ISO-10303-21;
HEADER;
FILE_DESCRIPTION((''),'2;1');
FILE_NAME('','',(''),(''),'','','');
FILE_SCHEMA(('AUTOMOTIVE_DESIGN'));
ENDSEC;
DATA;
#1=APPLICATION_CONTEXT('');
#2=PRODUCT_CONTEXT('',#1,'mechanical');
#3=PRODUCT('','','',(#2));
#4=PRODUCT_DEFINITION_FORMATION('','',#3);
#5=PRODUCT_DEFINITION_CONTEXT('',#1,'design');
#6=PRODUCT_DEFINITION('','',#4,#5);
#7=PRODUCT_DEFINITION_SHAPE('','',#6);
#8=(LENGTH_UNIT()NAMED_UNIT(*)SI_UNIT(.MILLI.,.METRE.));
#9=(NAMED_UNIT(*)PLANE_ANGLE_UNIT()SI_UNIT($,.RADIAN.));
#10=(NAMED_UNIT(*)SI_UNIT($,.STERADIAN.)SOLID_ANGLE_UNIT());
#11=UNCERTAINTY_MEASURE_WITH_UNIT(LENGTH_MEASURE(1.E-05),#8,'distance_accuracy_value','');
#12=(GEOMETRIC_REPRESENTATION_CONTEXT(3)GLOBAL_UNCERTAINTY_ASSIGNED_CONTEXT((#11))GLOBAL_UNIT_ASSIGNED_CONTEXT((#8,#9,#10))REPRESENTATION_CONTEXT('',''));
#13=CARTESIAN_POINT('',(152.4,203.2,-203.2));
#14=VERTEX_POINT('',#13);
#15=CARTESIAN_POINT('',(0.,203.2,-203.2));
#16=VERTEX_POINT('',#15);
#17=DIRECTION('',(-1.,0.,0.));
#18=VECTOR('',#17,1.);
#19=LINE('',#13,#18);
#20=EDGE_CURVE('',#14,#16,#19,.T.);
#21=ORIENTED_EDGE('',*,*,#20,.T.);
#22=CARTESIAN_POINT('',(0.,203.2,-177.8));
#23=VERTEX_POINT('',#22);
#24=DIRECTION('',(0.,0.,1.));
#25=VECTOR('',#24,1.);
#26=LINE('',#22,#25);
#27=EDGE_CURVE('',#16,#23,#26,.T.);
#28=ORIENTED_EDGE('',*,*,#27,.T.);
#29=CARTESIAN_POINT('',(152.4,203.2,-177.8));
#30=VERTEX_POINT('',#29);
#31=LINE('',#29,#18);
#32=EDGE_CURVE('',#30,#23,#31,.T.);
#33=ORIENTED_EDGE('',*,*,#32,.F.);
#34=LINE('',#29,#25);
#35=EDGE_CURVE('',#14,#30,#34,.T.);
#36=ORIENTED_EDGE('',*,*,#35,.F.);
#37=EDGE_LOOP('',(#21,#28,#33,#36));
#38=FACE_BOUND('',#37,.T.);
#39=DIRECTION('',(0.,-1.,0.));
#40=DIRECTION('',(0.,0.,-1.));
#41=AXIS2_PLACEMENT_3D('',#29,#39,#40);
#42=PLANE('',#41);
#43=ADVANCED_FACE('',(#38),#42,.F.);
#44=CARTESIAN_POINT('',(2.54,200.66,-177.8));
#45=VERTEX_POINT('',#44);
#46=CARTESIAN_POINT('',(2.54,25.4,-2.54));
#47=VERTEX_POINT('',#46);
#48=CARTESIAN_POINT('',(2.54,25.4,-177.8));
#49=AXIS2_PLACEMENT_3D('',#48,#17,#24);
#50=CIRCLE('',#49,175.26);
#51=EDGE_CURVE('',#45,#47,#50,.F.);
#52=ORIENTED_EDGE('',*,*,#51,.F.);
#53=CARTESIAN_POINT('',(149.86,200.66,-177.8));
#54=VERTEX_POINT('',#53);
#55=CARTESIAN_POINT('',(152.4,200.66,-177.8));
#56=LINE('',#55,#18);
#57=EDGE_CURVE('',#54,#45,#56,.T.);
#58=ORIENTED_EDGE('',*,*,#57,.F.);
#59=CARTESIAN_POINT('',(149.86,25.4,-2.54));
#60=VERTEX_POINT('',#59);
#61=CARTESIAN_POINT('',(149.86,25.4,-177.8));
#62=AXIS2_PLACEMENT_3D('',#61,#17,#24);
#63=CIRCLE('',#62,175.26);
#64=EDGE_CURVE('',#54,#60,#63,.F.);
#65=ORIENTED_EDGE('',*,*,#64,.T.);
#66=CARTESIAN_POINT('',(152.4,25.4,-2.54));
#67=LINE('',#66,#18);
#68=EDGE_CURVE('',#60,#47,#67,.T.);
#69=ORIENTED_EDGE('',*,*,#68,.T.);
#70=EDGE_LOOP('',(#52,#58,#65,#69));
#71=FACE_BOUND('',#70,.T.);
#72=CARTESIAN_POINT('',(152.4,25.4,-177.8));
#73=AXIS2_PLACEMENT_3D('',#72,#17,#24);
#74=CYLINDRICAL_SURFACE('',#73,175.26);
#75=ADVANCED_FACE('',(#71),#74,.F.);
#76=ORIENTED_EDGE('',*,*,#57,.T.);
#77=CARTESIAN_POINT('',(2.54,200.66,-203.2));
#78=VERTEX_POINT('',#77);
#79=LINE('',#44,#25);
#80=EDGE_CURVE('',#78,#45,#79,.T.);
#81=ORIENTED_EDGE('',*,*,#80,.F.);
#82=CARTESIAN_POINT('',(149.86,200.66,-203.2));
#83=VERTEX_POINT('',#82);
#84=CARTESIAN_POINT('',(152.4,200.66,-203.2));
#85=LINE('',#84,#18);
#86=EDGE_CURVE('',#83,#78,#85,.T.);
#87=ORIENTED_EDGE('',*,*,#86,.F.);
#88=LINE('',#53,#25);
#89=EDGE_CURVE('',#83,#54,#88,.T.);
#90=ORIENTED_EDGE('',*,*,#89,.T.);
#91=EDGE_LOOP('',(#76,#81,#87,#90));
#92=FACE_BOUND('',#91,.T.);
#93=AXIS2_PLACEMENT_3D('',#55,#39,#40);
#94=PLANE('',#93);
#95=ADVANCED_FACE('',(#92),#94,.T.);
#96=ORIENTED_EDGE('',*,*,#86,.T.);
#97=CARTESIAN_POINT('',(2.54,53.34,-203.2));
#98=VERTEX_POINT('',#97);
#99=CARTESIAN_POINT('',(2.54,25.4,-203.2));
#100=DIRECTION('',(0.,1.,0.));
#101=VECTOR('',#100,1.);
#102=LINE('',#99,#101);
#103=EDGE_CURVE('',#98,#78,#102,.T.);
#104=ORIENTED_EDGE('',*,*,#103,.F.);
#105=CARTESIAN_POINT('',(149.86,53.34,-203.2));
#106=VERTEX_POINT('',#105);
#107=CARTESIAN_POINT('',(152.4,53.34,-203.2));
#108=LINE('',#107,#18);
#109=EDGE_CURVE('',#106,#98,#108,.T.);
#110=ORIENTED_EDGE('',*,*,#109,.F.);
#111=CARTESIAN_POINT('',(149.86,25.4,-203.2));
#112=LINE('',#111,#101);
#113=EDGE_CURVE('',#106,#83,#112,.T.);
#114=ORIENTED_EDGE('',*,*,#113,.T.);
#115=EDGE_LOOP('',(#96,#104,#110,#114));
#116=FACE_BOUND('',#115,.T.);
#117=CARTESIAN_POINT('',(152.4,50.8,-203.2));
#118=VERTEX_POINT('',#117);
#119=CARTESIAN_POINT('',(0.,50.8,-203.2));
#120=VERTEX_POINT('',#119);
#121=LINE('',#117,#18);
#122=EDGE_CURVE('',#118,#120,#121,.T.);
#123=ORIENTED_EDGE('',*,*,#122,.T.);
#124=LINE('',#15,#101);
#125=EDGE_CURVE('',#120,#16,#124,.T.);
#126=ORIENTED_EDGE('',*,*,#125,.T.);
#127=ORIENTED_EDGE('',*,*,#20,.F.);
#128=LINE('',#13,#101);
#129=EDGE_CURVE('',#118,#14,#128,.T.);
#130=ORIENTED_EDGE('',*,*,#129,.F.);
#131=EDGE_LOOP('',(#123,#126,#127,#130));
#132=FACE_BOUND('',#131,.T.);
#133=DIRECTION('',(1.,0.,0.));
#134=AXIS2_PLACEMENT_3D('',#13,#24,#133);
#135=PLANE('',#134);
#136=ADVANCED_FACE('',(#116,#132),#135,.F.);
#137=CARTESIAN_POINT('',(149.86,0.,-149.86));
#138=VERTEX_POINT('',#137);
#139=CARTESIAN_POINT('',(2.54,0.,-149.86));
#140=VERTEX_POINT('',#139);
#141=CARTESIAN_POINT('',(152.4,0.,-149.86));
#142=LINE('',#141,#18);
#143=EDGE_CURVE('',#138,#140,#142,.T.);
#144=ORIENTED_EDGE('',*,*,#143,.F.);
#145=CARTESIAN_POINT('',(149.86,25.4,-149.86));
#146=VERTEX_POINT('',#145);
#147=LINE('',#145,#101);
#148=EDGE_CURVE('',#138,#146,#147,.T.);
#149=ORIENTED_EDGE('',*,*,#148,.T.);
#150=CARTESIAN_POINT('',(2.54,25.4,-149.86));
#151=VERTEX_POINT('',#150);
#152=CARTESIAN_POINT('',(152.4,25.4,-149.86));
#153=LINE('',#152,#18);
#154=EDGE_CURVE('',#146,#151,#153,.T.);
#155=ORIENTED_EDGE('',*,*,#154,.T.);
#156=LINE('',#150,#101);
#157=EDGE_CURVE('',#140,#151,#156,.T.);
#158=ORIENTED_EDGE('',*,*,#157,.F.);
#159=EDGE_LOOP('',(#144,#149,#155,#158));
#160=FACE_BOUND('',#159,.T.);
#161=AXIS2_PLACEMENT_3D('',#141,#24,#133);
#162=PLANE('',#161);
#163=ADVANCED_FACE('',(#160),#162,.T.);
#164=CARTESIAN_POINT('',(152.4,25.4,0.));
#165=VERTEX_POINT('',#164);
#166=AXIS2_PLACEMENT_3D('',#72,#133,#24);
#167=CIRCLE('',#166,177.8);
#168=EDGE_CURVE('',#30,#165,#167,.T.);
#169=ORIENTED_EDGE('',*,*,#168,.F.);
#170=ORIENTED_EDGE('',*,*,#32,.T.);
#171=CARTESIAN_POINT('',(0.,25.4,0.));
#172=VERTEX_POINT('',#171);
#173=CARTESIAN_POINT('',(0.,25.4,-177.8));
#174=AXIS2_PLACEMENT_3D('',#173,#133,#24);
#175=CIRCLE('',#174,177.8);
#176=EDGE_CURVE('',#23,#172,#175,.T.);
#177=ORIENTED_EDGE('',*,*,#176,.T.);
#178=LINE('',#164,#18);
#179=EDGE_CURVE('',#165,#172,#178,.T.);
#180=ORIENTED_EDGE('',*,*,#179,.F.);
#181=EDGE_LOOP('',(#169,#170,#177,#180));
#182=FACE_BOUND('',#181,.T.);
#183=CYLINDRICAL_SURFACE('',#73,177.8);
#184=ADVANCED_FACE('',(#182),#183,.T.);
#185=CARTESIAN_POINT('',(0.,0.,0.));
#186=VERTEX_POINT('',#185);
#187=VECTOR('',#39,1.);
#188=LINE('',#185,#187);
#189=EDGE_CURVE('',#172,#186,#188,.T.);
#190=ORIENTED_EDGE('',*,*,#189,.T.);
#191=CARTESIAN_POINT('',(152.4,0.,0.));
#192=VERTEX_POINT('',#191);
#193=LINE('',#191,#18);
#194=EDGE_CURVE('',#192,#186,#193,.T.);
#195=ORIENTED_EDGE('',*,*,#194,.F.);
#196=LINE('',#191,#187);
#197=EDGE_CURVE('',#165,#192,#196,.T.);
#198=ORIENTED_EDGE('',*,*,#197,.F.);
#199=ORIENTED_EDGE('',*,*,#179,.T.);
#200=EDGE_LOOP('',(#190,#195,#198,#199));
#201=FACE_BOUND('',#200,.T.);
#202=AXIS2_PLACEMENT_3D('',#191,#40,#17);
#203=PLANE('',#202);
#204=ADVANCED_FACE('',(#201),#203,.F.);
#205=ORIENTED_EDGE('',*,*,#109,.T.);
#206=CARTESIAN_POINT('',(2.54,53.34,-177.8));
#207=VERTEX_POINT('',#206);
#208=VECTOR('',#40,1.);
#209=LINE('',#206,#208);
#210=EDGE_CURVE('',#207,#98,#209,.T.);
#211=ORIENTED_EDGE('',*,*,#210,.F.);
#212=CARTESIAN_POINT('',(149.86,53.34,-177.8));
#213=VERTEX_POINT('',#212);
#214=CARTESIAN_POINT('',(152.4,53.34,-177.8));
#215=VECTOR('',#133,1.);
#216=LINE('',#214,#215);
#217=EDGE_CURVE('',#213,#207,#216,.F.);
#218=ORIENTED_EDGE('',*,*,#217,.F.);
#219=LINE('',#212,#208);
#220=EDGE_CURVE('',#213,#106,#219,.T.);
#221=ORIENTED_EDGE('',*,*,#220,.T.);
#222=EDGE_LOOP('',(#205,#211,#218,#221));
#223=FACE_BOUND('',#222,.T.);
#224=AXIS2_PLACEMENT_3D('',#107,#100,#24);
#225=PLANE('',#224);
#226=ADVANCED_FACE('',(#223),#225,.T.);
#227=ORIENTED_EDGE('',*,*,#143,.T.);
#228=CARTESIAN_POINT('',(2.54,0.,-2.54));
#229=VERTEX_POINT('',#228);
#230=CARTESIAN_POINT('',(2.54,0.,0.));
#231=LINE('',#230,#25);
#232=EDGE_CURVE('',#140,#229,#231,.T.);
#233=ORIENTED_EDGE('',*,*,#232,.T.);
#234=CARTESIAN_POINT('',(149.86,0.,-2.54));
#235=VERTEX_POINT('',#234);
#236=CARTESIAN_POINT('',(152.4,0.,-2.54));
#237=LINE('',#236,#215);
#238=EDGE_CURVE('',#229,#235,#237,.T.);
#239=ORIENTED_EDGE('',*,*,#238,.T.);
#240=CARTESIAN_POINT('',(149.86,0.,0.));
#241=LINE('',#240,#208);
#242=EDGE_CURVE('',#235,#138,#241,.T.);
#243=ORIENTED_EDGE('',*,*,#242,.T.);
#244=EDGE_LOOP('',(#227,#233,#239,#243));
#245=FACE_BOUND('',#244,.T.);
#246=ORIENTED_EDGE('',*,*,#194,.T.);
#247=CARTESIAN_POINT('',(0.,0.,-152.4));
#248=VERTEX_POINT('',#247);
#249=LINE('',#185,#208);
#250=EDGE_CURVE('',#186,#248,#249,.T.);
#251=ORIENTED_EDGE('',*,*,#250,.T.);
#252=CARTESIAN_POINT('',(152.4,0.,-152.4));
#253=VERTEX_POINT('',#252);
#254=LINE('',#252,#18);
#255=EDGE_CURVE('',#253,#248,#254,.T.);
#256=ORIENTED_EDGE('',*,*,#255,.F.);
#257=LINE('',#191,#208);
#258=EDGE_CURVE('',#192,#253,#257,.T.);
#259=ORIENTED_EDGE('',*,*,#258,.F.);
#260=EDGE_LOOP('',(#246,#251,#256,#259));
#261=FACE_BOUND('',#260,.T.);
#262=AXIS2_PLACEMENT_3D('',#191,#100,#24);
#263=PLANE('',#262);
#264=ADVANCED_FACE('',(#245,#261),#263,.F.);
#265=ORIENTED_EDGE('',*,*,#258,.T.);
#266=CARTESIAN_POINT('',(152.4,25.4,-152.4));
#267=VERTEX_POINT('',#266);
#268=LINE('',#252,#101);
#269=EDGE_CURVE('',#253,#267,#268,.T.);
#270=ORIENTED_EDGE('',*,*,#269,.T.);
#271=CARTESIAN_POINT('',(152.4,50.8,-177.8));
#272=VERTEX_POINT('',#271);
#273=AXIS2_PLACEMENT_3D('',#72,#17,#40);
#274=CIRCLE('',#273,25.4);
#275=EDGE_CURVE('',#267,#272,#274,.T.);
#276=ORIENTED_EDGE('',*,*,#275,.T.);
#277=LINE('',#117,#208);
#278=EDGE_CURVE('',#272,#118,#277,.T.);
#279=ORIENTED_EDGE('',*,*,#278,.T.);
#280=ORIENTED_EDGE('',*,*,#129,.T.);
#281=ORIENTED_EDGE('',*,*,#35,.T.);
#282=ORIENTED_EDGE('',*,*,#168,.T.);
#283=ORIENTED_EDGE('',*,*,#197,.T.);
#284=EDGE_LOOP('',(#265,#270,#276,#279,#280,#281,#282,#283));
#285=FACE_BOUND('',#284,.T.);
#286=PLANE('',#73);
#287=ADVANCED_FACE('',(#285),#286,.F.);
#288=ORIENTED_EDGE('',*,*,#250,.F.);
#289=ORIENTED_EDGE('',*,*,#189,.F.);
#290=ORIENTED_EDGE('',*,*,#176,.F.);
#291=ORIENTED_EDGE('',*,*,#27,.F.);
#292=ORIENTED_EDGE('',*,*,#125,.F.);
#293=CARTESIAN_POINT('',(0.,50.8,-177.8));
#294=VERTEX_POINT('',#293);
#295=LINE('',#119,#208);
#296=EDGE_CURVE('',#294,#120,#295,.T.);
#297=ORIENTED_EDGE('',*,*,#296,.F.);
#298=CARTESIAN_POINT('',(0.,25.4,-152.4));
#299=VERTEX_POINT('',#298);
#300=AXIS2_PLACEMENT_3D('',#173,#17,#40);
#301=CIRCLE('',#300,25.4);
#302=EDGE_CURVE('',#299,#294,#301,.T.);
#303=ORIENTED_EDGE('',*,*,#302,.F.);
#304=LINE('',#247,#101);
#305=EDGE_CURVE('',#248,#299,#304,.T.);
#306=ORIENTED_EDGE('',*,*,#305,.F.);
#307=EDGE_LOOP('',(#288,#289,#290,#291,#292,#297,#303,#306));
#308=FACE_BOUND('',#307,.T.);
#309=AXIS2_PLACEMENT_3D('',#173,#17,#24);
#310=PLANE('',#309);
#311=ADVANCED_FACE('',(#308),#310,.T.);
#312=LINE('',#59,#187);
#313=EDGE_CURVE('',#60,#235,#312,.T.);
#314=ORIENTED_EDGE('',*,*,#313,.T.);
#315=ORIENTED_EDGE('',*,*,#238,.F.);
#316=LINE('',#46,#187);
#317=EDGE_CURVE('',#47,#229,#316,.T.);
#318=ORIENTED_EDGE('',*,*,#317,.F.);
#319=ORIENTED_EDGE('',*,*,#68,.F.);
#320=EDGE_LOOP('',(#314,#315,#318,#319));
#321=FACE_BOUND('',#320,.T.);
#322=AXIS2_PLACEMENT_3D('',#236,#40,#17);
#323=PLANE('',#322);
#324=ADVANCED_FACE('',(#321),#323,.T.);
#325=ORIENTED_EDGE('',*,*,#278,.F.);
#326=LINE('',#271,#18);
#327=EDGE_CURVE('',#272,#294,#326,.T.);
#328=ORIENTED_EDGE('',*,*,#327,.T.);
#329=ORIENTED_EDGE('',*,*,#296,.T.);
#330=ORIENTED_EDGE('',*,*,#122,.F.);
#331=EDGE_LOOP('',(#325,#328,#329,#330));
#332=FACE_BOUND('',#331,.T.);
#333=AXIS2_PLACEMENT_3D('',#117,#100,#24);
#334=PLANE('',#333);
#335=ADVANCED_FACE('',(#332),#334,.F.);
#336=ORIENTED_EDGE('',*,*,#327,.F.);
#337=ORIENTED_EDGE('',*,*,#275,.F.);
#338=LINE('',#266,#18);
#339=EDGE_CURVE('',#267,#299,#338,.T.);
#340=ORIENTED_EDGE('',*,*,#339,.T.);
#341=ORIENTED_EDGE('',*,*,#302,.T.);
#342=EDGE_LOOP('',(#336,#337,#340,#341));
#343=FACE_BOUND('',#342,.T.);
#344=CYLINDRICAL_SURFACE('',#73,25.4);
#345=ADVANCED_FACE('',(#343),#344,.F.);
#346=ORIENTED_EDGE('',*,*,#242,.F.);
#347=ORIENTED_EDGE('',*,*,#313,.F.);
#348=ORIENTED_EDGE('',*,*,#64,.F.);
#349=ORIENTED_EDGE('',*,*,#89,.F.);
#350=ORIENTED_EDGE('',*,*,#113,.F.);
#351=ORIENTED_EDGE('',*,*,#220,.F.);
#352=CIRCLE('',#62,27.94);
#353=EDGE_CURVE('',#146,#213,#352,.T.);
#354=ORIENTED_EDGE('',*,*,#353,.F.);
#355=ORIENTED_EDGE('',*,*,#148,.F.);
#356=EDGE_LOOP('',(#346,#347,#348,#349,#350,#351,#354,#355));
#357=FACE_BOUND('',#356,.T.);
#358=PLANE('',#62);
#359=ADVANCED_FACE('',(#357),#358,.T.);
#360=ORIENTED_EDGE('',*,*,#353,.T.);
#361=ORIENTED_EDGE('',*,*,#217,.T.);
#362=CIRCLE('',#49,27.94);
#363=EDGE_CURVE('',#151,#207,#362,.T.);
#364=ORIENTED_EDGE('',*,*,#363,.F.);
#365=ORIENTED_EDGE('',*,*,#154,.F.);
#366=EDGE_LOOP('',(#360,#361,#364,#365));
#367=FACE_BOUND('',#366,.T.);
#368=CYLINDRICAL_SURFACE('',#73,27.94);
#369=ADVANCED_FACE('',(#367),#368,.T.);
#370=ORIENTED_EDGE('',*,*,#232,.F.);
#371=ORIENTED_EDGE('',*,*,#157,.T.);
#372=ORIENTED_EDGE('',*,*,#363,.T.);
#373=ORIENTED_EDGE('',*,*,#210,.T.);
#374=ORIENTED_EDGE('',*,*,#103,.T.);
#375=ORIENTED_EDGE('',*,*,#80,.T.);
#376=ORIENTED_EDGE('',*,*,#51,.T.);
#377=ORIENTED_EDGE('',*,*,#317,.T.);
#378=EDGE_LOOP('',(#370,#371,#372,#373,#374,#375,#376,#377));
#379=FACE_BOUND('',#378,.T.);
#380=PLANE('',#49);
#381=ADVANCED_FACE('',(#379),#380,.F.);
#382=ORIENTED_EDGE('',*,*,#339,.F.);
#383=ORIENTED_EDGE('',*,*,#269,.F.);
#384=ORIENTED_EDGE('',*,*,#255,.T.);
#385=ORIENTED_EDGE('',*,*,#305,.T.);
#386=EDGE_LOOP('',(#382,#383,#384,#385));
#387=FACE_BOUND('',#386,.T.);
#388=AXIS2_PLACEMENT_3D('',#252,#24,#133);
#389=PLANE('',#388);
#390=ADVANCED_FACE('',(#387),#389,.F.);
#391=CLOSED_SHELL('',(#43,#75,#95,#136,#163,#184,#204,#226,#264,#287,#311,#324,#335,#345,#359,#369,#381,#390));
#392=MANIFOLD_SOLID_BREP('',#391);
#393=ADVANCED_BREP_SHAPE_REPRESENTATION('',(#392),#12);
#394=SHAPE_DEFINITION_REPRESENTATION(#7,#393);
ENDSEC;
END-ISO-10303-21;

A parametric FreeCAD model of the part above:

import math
import FreeCAD as App
import Part
import Sketcher

V = App.Vector
Q = App.Units.Quantity


def faces_at(feature, points):
    """Names of the faces that lie closest to the given points."""
    faces = feature.Shape.Faces
    near = lambda p: min(range(len(faces)), key=lambda i: faces[i].distToShape(Part.Vertex(*p))[0])
    return sorted({f"Face{near(p) + 1}" for p in points})


def add_polygon(sketch, points):
    """Adds a closed chain of lines whose ends are joined by coincident constraints."""
    first, n = sketch.GeometryCount, len(points)
    for a, b in zip(points, points[1:] + points[:1]):
        sketch.addGeometry(Part.LineSegment(App.Vector(*a, 0), App.Vector(*b, 0)), False)
    for i in range(n):
        sketch.addConstraint(Sketcher.Constraint("Coincident", first + i, 2, first + (i + 1) % n, 1))

doc = App.newDocument("Part")
body = doc.addObject("PartDesign::Body", "Body")

sketch1 = body.newObject("Sketcher::SketchObject", "Sketch")
sketch1.AttachmentSupport = (doc.getObject("YZ_Plane"), [""])
sketch1.MapMode = "FlatFace"
sketch1.addGeometry([
    Part.LineSegment(V(0, 0, 0), V(0, -152, 0)),
    Part.LineSegment(V(0, -152, 0), V(25, -152, 0)),
    Part.ArcOfCircle(Part.Circle(V(25, -178, 0), V(0, 0, 1), 25), math.radians(0), math.radians(90)),
    Part.LineSegment(V(51, -178, 0), V(51, -203, 0)),
    Part.LineSegment(V(51, -203, 0), V(203, -203, 0)),
    Part.LineSegment(V(203, -203, 0), V(203, -178, 0)),
    Part.ArcOfCircle(Part.Circle(V(25, -178, 0), V(0, 0, 1), 178), math.radians(0), math.radians(90)),
    Part.LineSegment(V(25, 0, 0), V(0, 0, 0)),
], False)
sketch1.addConstraint([
    Sketcher.Constraint("Coincident", 0, 2, 1, 1),
    Sketcher.Constraint("Tangent", 1, 2, 2, 2),
    Sketcher.Constraint("Tangent", 2, 1, 3, 1),
    Sketcher.Constraint("Coincident", 3, 2, 4, 1),
    Sketcher.Constraint("Coincident", 4, 2, 5, 1),
    Sketcher.Constraint("Tangent", 5, 2, 6, 1),
    Sketcher.Constraint("Tangent", 6, 2, 7, 1),
    Sketcher.Constraint("Coincident", 7, 2, 0, 1),
    Sketcher.Constraint("Vertical", 0),
    Sketcher.Constraint("Horizontal", 1),
    Sketcher.Constraint("Vertical", 3),
    Sketcher.Constraint("Horizontal", 4),
    Sketcher.Constraint("Vertical", 5),
    Sketcher.Constraint("Horizontal", 7),
    Sketcher.Constraint("Coincident", 7, 2, -1, 1),
    Sketcher.Constraint("Coincident", 6, 3, 2, 3),
    Sketcher.Constraint("Equal", 7, 3),
    Sketcher.Constraint("Radius", 2, Q("1 in")),
    Sketcher.Constraint("Radius", 6, Q("7 in")),
    Sketcher.Constraint("DistanceX", 1, 1, 1, 2, Q("1 in")),
])
pad1 = body.newObject("PartDesign::Pad", "Pad")
pad1.Profile = sketch1
pad1.Length = Q("6 in")
doc.recompute()

thickness = body.newObject("PartDesign::Thickness", "Thickness")
thickness.Base = (pad1, faces_at(pad1, [(76.2, 127, -203.2)]))
thickness.Value = Q("0.1 in")
thickness.Reversed = True
thickness.Join = "Intersection"

sketch2 = body.newObject("Sketcher::SketchObject", "Sketch001")
sketch2.AttachmentSupport = (doc.getObject("XZ_Plane"), [""])
sketch2.MapMode = "FlatFace"
sketch2.AttachmentOffset = App.Placement(V(0, 0, -0.1 * 25.4), App.Rotation())
add_polygon(sketch2, [(3, -150), (3, -3), (150, -3), (150, -150)])
sketch2.addConstraint([
    Sketcher.Constraint("Vertical", 0),
    Sketcher.Constraint("Horizontal", 1),
    Sketcher.Constraint("Vertical", 2),
    Sketcher.Constraint("Horizontal", 3),
    Sketcher.Constraint("Equal", 3, 0),
    Sketcher.Constraint("DistanceX", 1, 1, 1, 2, Q("5.8 in")),
    Sketcher.Constraint("DistanceX", -1, 1, 0, 2, Q("0.1 in")),
    Sketcher.Constraint("DistanceY", 0, 2, -1, 1, Q("0.1 in")),
])
pocket1 = body.newObject("PartDesign::Pocket", "Pocket")
pocket1.Profile = sketch2
pocket1.Length = Q("6 in")
pocket1.Reversed = True

doc.recompute()
